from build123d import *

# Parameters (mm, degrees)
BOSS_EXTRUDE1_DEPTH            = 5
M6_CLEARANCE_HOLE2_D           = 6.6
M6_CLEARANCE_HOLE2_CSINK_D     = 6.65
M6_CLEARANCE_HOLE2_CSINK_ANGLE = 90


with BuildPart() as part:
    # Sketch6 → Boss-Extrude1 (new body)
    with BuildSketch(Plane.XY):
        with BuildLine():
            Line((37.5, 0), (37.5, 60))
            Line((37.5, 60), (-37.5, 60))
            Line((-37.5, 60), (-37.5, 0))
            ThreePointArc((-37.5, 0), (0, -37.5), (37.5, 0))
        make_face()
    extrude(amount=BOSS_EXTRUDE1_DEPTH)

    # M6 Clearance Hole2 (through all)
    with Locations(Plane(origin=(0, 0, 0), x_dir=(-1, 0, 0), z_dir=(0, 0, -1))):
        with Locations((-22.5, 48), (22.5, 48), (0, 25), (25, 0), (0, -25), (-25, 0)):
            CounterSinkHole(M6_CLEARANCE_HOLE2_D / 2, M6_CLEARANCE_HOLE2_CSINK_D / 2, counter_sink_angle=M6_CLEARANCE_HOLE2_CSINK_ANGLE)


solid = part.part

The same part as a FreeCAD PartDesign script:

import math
import FreeCAD as App
import Part
import Sketcher

V = App.Vector
Q = App.Units.Quantity

doc = App.newDocument("Part")
body = doc.addObject("PartDesign::Body", "Body")

sketch1 = body.newObject("Sketcher::SketchObject", "Sketch")
sketch1.AttachmentSupport = (doc.getObject("XY_Plane"), [""])
sketch1.MapMode = "FlatFace"
sketch1.addGeometry(Part.LineSegment(V(37.5, 0, 0), V(37.5, 60, 0)), False)
sketch1.addGeometry(Part.LineSegment(V(37.5, 60, 0), V(-37.5, 60, 0)), False)
sketch1.addGeometry(Part.LineSegment(V(-37.5, 60, 0), V(-37.5, 0, 0)), False)
sketch1.addGeometry(Part.ArcOfCircle(Part.Circle(V(0, 0, 0), V(0, 0, 1), 37.5), math.radians(180), math.radians(360)), False)
sketch1.addConstraint(Sketcher.Constraint("Coincident", 0, 2, 1, 1))
sketch1.addConstraint(Sketcher.Constraint("Coincident", 1, 2, 2, 1))
sketch1.addConstraint(Sketcher.Constraint("Tangent", 2, 2, 3, 1))
sketch1.addConstraint(Sketcher.Constraint("Tangent", 3, 2, 0, 1))
sketch1.addConstraint(Sketcher.Constraint("Vertical", 0))
sketch1.addConstraint(Sketcher.Constraint("Horizontal", 1))
sketch1.addConstraint(Sketcher.Constraint("Vertical", 2))
sketch1.addConstraint(Sketcher.Constraint("Coincident", 3, 3, -1, 1))
sketch1.addConstraint(Sketcher.Constraint("Radius", 3, Q("37.5 mm")))
sketch1.addConstraint(Sketcher.Constraint("DistanceY", 0, 1, 0, 2, Q("60 mm")))
pad1 = body.newObject("PartDesign::Pad", "Pad")
pad1.Profile = sketch1
pad1.Length = 5

sketch2 = body.newObject("Sketcher::SketchObject", "Sketch001")
sketch2.AttachmentSupport = (doc.getObject("XY_Plane"), [""])
sketch2.MapMode = "FlatFace"
sketch2.addGeometry(Part.Circle(V(22.5, 48, 0), V(0, 0, 1), 3.3), False)
sketch2.addGeometry(Part.Circle(V(-22.5, 48, 0), V(0, 0, 1), 3.3), False)
sketch2.addGeometry(Part.Circle(V(0, 25, 0), V(0, 0, 1), 3.3), False)
sketch2.addGeometry(Part.Circle(V(-25, 0, 0), V(0, 0, 1), 3.3), False)
sketch2.addGeometry(Part.Circle(V(0, -25, 0), V(0, 0, 1), 3.3), False)
sketch2.addGeometry(Part.Circle(V(25, 0, 0), V(0, 0, 1), 3.3), False)
sketch2.addConstraint(Sketcher.Constraint("Equal", 0, 1))
sketch2.addConstraint(Sketcher.Constraint("Equal", 1, 2))
sketch2.addConstraint(Sketcher.Constraint("Equal", 2, 3))
sketch2.addConstraint(Sketcher.Constraint("Equal", 3, 4))
sketch2.addConstraint(Sketcher.Constraint("Equal", 4, 5))
sketch2.addConstraint(Sketcher.Constraint("Symmetric", 2, 3, 4, 3, -1, 1))
sketch2.addConstraint(Sketcher.Constraint("Symmetric", 3, 3, 5, 3, -1, 1))
sketch2.addConstraint(Sketcher.Constraint("Symmetric", 0, 3, 1, 3, -2))
sketch2.addConstraint(Sketcher.Constraint("PointOnObject", 2, 3, -2))
sketch2.addConstraint(Sketcher.Constraint("PointOnObject", 3, 3, -1))
sketch2.addConstraint(Sketcher.Constraint("Diameter", 0, Q("6.6 mm")))
sketch2.addConstraint(Sketcher.Constraint("DistanceY", -1, 1, 0, 3, Q("48 mm")))
sketch2.addConstraint(Sketcher.Constraint("DistanceY", -1, 1, 2, 3, Q("25 mm")))
sketch2.addConstraint(Sketcher.Constraint("DistanceX", 3, 3, -1, 1, Q("25 mm")))
sketch2.addConstraint(Sketcher.Constraint("DistanceX", 1, 3, 0, 3, Q("45 mm")))
doc.recompute()
hole = body.newObject("PartDesign::Hole", "Hole")
hole.Profile = sketch2
hole.ThreadType = "None"
hole.Diameter = 6.6
hole.DepthType = "ThroughAll"
hole.HoleCutType = "Countersink"
hole.HoleCutDiameter = 6.65
hole.HoleCutCountersinkAngle = 90
hole.Reversed = True

doc.recompute()
